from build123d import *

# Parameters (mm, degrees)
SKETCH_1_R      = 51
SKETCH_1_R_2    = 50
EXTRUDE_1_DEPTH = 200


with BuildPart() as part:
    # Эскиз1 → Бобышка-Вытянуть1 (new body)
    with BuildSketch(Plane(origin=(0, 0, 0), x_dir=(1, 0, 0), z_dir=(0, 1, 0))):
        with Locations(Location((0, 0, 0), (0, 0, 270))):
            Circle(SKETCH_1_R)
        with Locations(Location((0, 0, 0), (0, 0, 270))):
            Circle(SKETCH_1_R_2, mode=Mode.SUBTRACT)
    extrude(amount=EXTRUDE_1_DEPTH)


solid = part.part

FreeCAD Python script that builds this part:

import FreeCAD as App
import Part
import Sketcher

V = App.Vector
Q = App.Units.Quantity

doc = App.newDocument("Part")
body = doc.addObject("PartDesign::Body", "Body")

# Sketch on XZ plane
sketch1 = doc.addObject("Sketcher::SketchObject", "Sketch")
body.addObject(sketch1)
sketch1.AttachmentSupport = (doc.XZ_Plane, [""])
sketch1.MapMode = "FlatFace"
sketch1.addGeometry([
    Part.Circle(V(0, 0, 0), V(0, 0, 1), 51),
    Part.Circle(V(0, 0, 0), V(0, 0, 1), 50),
], False)
sketch1.addConstraint([
    Sketcher.Constraint("Coincident", 0, 3, -1, 1),
    Sketcher.Constraint("Coincident", 1, 3, -1, 1),
    Sketcher.Constraint("Diameter", 0, Q("102 mm")),
    Sketcher.Constraint("Diameter", 1, Q("100 mm")),
])
pad1 = doc.addObject("PartDesign::Pad", "Pad")
body.addObject(pad1)
pad1.Profile = sketch1
pad1.Length = 200
pad1.Reversed = True

doc.recompute()
